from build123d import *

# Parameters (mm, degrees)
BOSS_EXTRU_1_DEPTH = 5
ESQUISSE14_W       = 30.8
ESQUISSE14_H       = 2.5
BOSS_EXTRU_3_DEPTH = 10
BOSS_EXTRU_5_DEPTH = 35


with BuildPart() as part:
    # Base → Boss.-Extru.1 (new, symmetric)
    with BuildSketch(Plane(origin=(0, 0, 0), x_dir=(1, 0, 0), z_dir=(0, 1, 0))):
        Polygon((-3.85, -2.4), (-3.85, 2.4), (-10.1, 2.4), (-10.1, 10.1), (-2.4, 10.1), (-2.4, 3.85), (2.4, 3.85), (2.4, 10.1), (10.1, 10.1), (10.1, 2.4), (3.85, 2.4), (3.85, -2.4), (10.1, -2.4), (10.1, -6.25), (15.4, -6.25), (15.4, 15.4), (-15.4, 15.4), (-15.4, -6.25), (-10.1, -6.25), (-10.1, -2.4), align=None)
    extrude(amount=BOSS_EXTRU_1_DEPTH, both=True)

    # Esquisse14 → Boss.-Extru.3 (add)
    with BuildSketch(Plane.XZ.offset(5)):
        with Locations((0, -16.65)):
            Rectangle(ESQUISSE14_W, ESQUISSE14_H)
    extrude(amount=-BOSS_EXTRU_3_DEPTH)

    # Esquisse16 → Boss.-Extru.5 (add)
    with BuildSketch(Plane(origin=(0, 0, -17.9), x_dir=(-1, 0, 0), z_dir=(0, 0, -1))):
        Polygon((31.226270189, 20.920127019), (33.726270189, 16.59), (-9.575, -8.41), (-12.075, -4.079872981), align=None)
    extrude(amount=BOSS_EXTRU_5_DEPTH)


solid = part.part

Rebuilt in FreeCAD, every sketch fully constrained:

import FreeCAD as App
import Part
import Sketcher
Q = App.Units.Quantity


def add_polygon(sketch, points):
    """Adds a closed chain of lines whose ends are joined by coincident constraints."""
    first, n = sketch.GeometryCount, len(points)
    for a, b in zip(points, points[1:] + points[:1]):
        sketch.addGeometry(Part.LineSegment(App.Vector(*a, 0), App.Vector(*b, 0)), False)
    for i in range(n):
        sketch.addConstraint(Sketcher.Constraint("Coincident", first + i, 2, first + (i + 1) % n, 1))

doc = App.newDocument("Part")
body = doc.addObject("PartDesign::Body", "Body")

# Sketch on XZ plane
sketch1 = body.newObject("Sketcher::SketchObject", "Sketch")
sketch1.AttachmentSupport = (doc.getObject("XZ_Plane"), [""])
sketch1.MapMode = "FlatFace"
add_polygon(sketch1, [(-3.9, 2.4), (-3.9, -2.4), (-10.1, -2.4), (-10.1, -10.1), (-2.4, -10.1), (-2.4, -3.9), (2.4, -3.9), (2.4, -10.1), (10.1, -10.1), (10.1, -2.4), (3.9, -2.4), (3.9, 2.4), (10.1, 2.4), (10.1, 6.2), (15.4, 6.2), (15.4, -15.4), (-15.4, -15.4), (-15.4, 6.2), (-10.1, 6.2), (-10.1, 2.4)])  # lines 0-19
sketch1.addConstraint([
    Sketcher.Constraint("Vertical", 0),
    Sketcher.Constraint("Horizontal", 1),
    Sketcher.Constraint("Vertical", 2),
    Sketcher.Constraint("Horizontal", 3),
    Sketcher.Constraint("Vertical", 4),
    Sketcher.Constraint("Horizontal", 5),
    Sketcher.Constraint("Vertical", 6),
    Sketcher.Constraint("Horizontal", 7),
    Sketcher.Constraint("Vertical", 8),
    Sketcher.Constraint("Horizontal", 9),
    Sketcher.Constraint("Vertical", 10),
    Sketcher.Constraint("Horizontal", 11),
    Sketcher.Constraint("Vertical", 12),
    Sketcher.Constraint("Horizontal", 13),
    Sketcher.Constraint("Vertical", 14),
    Sketcher.Constraint("Horizontal", 15),
    Sketcher.Constraint("Vertical", 16),
    Sketcher.Constraint("Horizontal", 17),
    Sketcher.Constraint("Vertical", 18),
    Sketcher.Constraint("Horizontal", 19),
    Sketcher.Constraint("Symmetric", 0, 2, 10, 2, -1, 1),
    Sketcher.Constraint("Symmetric", 8, 2, 18, 2, -1, 1),
    Sketcher.Constraint("Symmetric", 3, 2, 6, 2, -2),
    Sketcher.Constraint("Symmetric", 1, 2, 8, 2, -2),
    Sketcher.Constraint("Symmetric", 13, 2, 16, 2, -2),
    Sketcher.Constraint("Vertical", 8, 2, 11, 2),
    Sketcher.Constraint("Equal", 5, 0),
    Sketcher.Constraint("Equal", 7, 2),
    Sketcher.Constraint("Equal", 19, 4),
    Sketcher.Constraint("DistanceX", 3, 1, 3, 2, 7.7),
    Sketcher.Constraint("DistanceX", 5, 1, 5, 2, 4.8),
    Sketcher.Constraint("DistanceX", 13, 1, 13, 2, 5.3),
    Sketcher.Constraint("DistanceY", 14, 2, 8, 2, 13.0),
    Sketcher.Constraint("DistanceX", 1, 2, 1, 1, 6.25),
    Sketcher.Constraint("DistanceY", 12, 1, 12, 2, 3.85),
])
pad1 = body.newObject("PartDesign::Pad", "Pad")
pad1.Profile = sketch1
pad1.Length = 10
pad1.Midplane = True

# Sketch on XZ plane
sketch2 = body.newObject("Sketcher::SketchObject", "Sketch001")
sketch2.AttachmentSupport = (doc.getObject("XZ_Plane"), [""])
sketch2.MapMode = "FlatFace"
sketch2.AttachmentOffset = App.Placement(App.Vector(0, 0, 5), App.Rotation())
add_polygon(sketch2, [(-15.4, -15.4), (-15.4, -17.9), (15.4, -17.9), (15.4, -15.4)])  # lines 0-3
sketch2.addConstraint([
    Sketcher.Constraint("Vertical", 0),
    Sketcher.Constraint("Horizontal", 1),
    Sketcher.Constraint("Vertical", 2),
    Sketcher.Constraint("Horizontal", 3),
    Sketcher.Constraint("DistanceX", 1, 1, 1, 2, 30.8),
    Sketcher.Constraint("DistanceY", 0, 2, 0, 1, 2.5),
    Sketcher.Constraint("DistanceX", 0, 2, -1, 1, 15.4),
    Sketcher.Constraint("DistanceY", 0, 2, -1, 1, 17.9),
])
pad2 = body.newObject("PartDesign::Pad", "Pad001")
pad2.Profile = sketch2
pad2.Length = 10
pad2.Reversed = True

# Sketch on XY plane
sketch3 = body.newObject("Sketcher::SketchObject", "Sketch002")
sketch3.AttachmentSupport = (doc.getObject("XY_Plane"), [""])
sketch3.MapMode = "FlatFace"
sketch3.AttachmentOffset = App.Placement(App.Vector(0, 0, -17.9), App.Rotation())
add_polygon(sketch3, [(-34, 17), (-31, 21), (12, -4), (10, -8)])  # lines 0-3
sketch3.addConstraint([
    Sketcher.Constraint("Perpendicular", 0, 1),
    Sketcher.Constraint("Perpendicular", 1, 2),
    Sketcher.Constraint("Perpendicular", 2, 3),
    Sketcher.Constraint("Angle", 0, Q("60 deg")),
    Sketcher.Constraint("Distance", 0, 5.0),
    Sketcher.Constraint("Distance", 1, 50.0),
    Sketcher.Constraint("DistanceY", 2, 2, -1, 1, 8.41),
    Sketcher.Constraint("DistanceX", -1, 1, 1, 2, 12.075),
])
pad3 = body.newObject("PartDesign::Pad", "Pad002")
pad3.Profile = sketch3
pad3.Length = 35
pad3.Reversed = True

doc.recompute()
